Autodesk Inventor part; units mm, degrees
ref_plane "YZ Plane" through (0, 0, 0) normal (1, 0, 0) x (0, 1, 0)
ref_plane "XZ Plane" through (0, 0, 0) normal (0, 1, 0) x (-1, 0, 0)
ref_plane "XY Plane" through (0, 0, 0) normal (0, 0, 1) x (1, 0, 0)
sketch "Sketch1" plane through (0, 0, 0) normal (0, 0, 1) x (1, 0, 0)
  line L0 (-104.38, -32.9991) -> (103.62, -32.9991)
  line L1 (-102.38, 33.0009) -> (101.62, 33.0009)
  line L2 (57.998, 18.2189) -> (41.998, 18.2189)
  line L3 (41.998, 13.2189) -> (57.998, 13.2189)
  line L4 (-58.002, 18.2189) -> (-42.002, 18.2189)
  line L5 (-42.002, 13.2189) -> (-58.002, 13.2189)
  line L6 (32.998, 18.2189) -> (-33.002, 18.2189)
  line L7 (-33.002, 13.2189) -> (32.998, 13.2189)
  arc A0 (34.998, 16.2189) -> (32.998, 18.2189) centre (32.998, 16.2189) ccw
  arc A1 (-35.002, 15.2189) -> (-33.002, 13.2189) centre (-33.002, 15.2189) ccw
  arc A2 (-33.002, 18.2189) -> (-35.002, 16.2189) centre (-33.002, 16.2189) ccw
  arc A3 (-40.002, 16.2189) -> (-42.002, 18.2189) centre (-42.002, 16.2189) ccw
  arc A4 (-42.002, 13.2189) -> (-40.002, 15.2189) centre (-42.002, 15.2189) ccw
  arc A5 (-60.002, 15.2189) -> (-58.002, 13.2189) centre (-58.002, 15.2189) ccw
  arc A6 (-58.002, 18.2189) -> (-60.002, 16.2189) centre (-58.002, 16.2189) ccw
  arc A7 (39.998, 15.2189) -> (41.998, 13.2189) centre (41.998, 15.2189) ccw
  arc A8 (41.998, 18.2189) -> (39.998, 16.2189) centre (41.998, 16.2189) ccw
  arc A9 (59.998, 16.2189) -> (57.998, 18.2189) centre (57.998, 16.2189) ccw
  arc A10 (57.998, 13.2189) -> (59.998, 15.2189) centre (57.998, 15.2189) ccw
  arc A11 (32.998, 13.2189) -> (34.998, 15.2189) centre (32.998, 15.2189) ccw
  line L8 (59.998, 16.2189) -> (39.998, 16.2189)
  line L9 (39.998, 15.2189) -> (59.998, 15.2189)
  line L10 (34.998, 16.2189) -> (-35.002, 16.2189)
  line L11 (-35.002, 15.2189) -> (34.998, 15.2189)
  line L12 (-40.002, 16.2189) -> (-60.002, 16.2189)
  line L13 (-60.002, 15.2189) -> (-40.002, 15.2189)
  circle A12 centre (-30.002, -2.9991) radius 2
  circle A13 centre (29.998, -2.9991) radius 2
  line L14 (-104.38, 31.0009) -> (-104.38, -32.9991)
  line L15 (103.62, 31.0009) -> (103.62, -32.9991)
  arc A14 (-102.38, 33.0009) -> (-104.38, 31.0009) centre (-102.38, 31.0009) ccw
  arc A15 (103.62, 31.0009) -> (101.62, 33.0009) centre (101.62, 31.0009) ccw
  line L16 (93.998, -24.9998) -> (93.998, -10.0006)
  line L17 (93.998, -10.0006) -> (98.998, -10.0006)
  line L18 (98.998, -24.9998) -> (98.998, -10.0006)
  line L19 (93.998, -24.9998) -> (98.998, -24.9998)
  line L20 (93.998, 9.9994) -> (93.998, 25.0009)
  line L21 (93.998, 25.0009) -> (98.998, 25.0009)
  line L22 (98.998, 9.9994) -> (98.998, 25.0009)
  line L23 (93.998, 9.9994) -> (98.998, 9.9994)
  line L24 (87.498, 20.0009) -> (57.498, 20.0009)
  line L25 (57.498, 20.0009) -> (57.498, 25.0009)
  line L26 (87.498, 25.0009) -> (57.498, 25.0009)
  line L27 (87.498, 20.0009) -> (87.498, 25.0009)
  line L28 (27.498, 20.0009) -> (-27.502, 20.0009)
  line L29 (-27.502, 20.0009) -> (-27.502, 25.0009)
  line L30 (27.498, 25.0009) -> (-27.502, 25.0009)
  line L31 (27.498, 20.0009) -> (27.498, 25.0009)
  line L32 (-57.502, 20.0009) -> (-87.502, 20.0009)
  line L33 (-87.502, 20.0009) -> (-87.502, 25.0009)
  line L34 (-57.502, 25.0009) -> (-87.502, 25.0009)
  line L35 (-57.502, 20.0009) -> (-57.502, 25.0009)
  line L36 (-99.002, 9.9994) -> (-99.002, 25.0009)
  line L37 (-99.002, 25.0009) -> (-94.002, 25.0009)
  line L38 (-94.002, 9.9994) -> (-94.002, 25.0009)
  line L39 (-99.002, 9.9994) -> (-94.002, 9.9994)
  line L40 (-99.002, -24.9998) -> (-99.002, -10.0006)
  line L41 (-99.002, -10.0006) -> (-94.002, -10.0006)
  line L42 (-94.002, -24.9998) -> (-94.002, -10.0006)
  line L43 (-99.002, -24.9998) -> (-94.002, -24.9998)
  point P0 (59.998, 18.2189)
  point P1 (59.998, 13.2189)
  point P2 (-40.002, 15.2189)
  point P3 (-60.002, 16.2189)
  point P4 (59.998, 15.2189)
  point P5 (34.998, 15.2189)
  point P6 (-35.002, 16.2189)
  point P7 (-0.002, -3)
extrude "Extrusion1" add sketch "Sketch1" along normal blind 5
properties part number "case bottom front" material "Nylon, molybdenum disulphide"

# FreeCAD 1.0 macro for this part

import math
import FreeCAD as App
import Part
import Sketcher
from FreeCAD import Vector

doc = App.newDocument("Part")
body = doc.addObject("PartDesign::Body", "Body")

# Sketch on XY plane
sketch1 = body.newObject("Sketcher::SketchObject", "Sketch")
sketch1.AttachmentSupport = (doc.getObject("XY_Plane"), [""])
sketch1.MapMode = "FlatFace"
sketch1.addGeometry([
    Part.LineSegment(Vector(-104.4, 31, 0), Vector(-104.4, -33, 0)),  # 0
    Part.LineSegment(Vector(-104.4, -33, 0), Vector(103.6, -33, 0)),  # 1
    Part.LineSegment(Vector(103.6, -33, 0), Vector(103.6, 31, 0)),  # 2
    Part.ArcOfCircle(Part.Circle(Vector(101.6, 31, 0), Vector(0, 0, 1), 2), math.radians(0), math.radians(90)),  # 3
    Part.LineSegment(Vector(101.6, 33, 0), Vector(-102.4, 33, 0)),  # 4
    Part.ArcOfCircle(Part.Circle(Vector(-102.4, 31, 0), Vector(0, 0, 1), 2), math.radians(90), math.radians(180)),  # 5
    Part.LineSegment(Vector(-94, -25, 0), Vector(-99, -25, 0)),  # 6
    Part.LineSegment(Vector(-99, -25, 0), Vector(-99, -10, 0)),  # 7
    Part.LineSegment(Vector(-99, -10, 0), Vector(-94, -10, 0)),  # 8
    Part.LineSegment(Vector(-94, -10, 0), Vector(-94, -25, 0)),  # 9
    Part.Circle(Vector(-30, -3, 0), Vector(0, 0, 1), 2),  # 10
    Part.LineSegment(Vector(99, -25, 0), Vector(94, -25, 0)),  # 11
    Part.LineSegment(Vector(94, -25, 0), Vector(94, -10, 0)),  # 12
    Part.LineSegment(Vector(94, -10, 0), Vector(99, -10, 0)),  # 13
    Part.LineSegment(Vector(99, -10, 0), Vector(99, -25, 0)),  # 14
    Part.Circle(Vector(30, -3, 0), Vector(0, 0, 1), 2),  # 15
    Part.ArcOfCircle(Part.Circle(Vector(-42, 15.2, 0), Vector(0, 0, 1), 2), math.radians(-90), math.radians(0)),  # 16
    Part.LineSegment(Vector(-42, 13.2, 0), Vector(-58, 13.2, 0)),  # 17
    Part.ArcOfCircle(Part.Circle(Vector(-58, 15.2, 0), Vector(0, 0, 1), 2), math.radians(180), math.radians(270)),  # 18
    Part.LineSegment(Vector(-60, 15.2, 0), Vector(-40, 15.2, 0)),  # 19
    Part.LineSegment(Vector(-94, 10, 0), Vector(-99, 10, 0)),  # 20
    Part.LineSegment(Vector(-99, 10, 0), Vector(-99, 25, 0)),  # 21
    Part.LineSegment(Vector(-99, 25, 0), Vector(-94, 25, 0)),  # 22
    Part.LineSegment(Vector(-94, 25, 0), Vector(-94, 10, 0)),  # 23
    Part.LineSegment(Vector(-57.5, 25, 0), Vector(-57.5, 20, 0)),  # 24
    Part.LineSegment(Vector(-57.5, 20, 0), Vector(-87.5, 20, 0)),  # 25
    Part.LineSegment(Vector(-87.5, 20, 0), Vector(-87.5, 25, 0)),  # 26
    Part.LineSegment(Vector(-87.5, 25, 0), Vector(-57.5, 25, 0)),  # 27
    Part.ArcOfCircle(Part.Circle(Vector(-58, 16.2, 0), Vector(0, 0, 1), 2), math.radians(90), math.radians(180)),  # 28
    Part.LineSegment(Vector(-58, 18.2, 0), Vector(-42, 18.2, 0)),  # 29
    Part.ArcOfCircle(Part.Circle(Vector(-42, 16.2, 0), Vector(0, 0, 1), 2), math.radians(0), math.radians(90)),  # 30
    Part.LineSegment(Vector(-40, 16.2, 0), Vector(-60, 16.2, 0)),  # 31
    Part.LineSegment(Vector(33, 13.2, 0), Vector(-33, 13.2, 0)),  # 32
    Part.ArcOfCircle(Part.Circle(Vector(-33, 15.2, 0), Vector(0, 0, 1), 2), math.radians(180), math.radians(270)),  # 33
    Part.LineSegment(Vector(-35, 15.2, 0), Vector(35, 15.2, 0)),  # 34
    Part.ArcOfCircle(Part.Circle(Vector(33, 15.2, 0), Vector(0, 0, 1), 2), math.radians(-90), math.radians(0)),  # 35
    Part.LineSegment(Vector(58, 13.2, 0), Vector(42, 13.2, 0)),  # 36
    Part.ArcOfCircle(Part.Circle(Vector(42, 15.2, 0), Vector(0, 0, 1), 2), math.radians(180), math.radians(270)),  # 37
    Part.LineSegment(Vector(40, 15.2, 0), Vector(60, 15.2, 0)),  # 38
    Part.ArcOfCircle(Part.Circle(Vector(58, 15.2, 0), Vector(0, 0, 1), 2), math.radians(-90), math.radians(0)),  # 39
    Part.LineSegment(Vector(-33, 18.2, 0), Vector(33, 18.2, 0)),  # 40
    Part.ArcOfCircle(Part.Circle(Vector(33, 16.2, 0), Vector(0, 0, 1), 2), math.radians(0), math.radians(90)),  # 41
    Part.LineSegment(Vector(35, 16.2, 0), Vector(-35, 16.2, 0)),  # 42
    Part.ArcOfCircle(Part.Circle(Vector(-33, 16.2, 0), Vector(0, 0, 1), 2), math.radians(90), math.radians(180)),  # 43
    Part.LineSegment(Vector(27.5, 25, 0), Vector(27.5, 20, 0)),  # 44
    Part.LineSegment(Vector(27.5, 20, 0), Vector(-27.5, 20, 0)),  # 45
    Part.LineSegment(Vector(-27.5, 20, 0), Vector(-27.5, 25, 0)),  # 46
    Part.LineSegment(Vector(-27.5, 25, 0), Vector(27.5, 25, 0)),  # 47
    Part.LineSegment(Vector(42, 18.2, 0), Vector(58, 18.2, 0)),  # 48
    Part.ArcOfCircle(Part.Circle(Vector(58, 16.2, 0), Vector(0, 0, 1), 2), math.radians(0), math.radians(90)),  # 49
    Part.LineSegment(Vector(60, 16.2, 0), Vector(40, 16.2, 0)),  # 50
    Part.ArcOfCircle(Part.Circle(Vector(42, 16.2, 0), Vector(0, 0, 1), 2), math.radians(90), math.radians(180)),  # 51
    Part.LineSegment(Vector(87.5, 25, 0), Vector(87.5, 20, 0)),  # 52
    Part.LineSegment(Vector(87.5, 20, 0), Vector(57.5, 20, 0)),  # 53
    Part.LineSegment(Vector(57.5, 20, 0), Vector(57.5, 25, 0)),  # 54
    Part.LineSegment(Vector(57.5, 25, 0), Vector(87.5, 25, 0)),  # 55
    Part.LineSegment(Vector(99, 10, 0), Vector(94, 10, 0)),  # 56
    Part.LineSegment(Vector(94, 10, 0), Vector(94, 25, 0)),  # 57
    Part.LineSegment(Vector(94, 25, 0), Vector(99, 25, 0)),  # 58
    Part.LineSegment(Vector(99, 25, 0), Vector(99, 10, 0)),  # 59
], False)
sketch1.addConstraint([
    Sketcher.Constraint("Coincident", 0, 2, 1, 1),
    Sketcher.Constraint("Coincident", 1, 2, 2, 1),
    Sketcher.Constraint("Tangent", 2, 2, 3, 1),
    Sketcher.Constraint("Tangent", 3, 2, 4, 1),
    Sketcher.Constraint("Tangent", 4, 2, 5, 1),
    Sketcher.Constraint("Tangent", 5, 2, 0, 1),
    Sketcher.Constraint("Coincident", 6, 2, 7, 1),
    Sketcher.Constraint("Coincident", 7, 2, 8, 1),
    Sketcher.Constraint("Coincident", 8, 2, 9, 1),
    Sketcher.Constraint("Coincident", 9, 2, 6, 1),
    Sketcher.Constraint("Coincident", 11, 2, 12, 1),
    Sketcher.Constraint("Coincident", 12, 2, 13, 1),
    Sketcher.Constraint("Coincident", 13, 2, 14, 1),
    Sketcher.Constraint("Coincident", 14, 2, 11, 1),
    Sketcher.Constraint("Tangent", 16, 1, 17, 1),
    Sketcher.Constraint("Tangent", 17, 2, 18, 2),
    Sketcher.Constraint("Coincident", 18, 1, 19, 1),
    Sketcher.Constraint("Coincident", 19, 2, 16, 2),
    Sketcher.Constraint("Coincident", 20, 2, 21, 1),
    Sketcher.Constraint("Coincident", 21, 2, 22, 1),
    Sketcher.Constraint("Coincident", 22, 2, 23, 1),
    Sketcher.Constraint("Coincident", 23, 2, 20, 1),
    Sketcher.Constraint("Coincident", 24, 2, 25, 1),
    Sketcher.Constraint("Coincident", 25, 2, 26, 1),
    Sketcher.Constraint("Coincident", 26, 2, 27, 1),
    Sketcher.Constraint("Coincident", 27, 2, 24, 1),
    Sketcher.Constraint("Tangent", 28, 1, 29, 1),
    Sketcher.Constraint("Tangent", 29, 2, 30, 2),
    Sketcher.Constraint("Coincident", 30, 1, 31, 1),
    Sketcher.Constraint("Coincident", 31, 2, 28, 2),
    Sketcher.Constraint("Tangent", 32, 2, 33, 2),
    Sketcher.Constraint("Coincident", 33, 1, 34, 1),
    Sketcher.Constraint("Coincident", 34, 2, 35, 2),
    Sketcher.Constraint("Tangent", 35, 1, 32, 1),
    Sketcher.Constraint("Tangent", 36, 2, 37, 2),
    Sketcher.Constraint("Coincident", 37, 1, 38, 1),
    Sketcher.Constraint("Coincident", 38, 2, 39, 2),
    Sketcher.Constraint("Tangent", 39, 1, 36, 1),
    Sketcher.Constraint("Tangent", 40, 2, 41, 2),
    Sketcher.Constraint("Coincident", 41, 1, 42, 1),
    Sketcher.Constraint("Coincident", 42, 2, 43, 2),
    Sketcher.Constraint("Tangent", 43, 1, 40, 1),
    Sketcher.Constraint("Coincident", 44, 2, 45, 1),
    Sketcher.Constraint("Coincident", 45, 2, 46, 1),
    Sketcher.Constraint("Coincident", 46, 2, 47, 1),
    Sketcher.Constraint("Coincident", 47, 2, 44, 1),
    Sketcher.Constraint("Tangent", 48, 2, 49, 2),
    Sketcher.Constraint("Coincident", 49, 1, 50, 1),
    Sketcher.Constraint("Coincident", 50, 2, 51, 2),
    Sketcher.Constraint("Tangent", 51, 1, 48, 1),
    Sketcher.Constraint("Coincident", 52, 2, 53, 1),
    Sketcher.Constraint("Coincident", 53, 2, 54, 1),
    Sketcher.Constraint("Coincident", 54, 2, 55, 1),
    Sketcher.Constraint("Coincident", 55, 2, 52, 1),
    Sketcher.Constraint("Coincident", 56, 2, 57, 1),
    Sketcher.Constraint("Coincident", 57, 2, 58, 1),
    Sketcher.Constraint("Coincident", 58, 2, 59, 1),
    Sketcher.Constraint("Coincident", 59, 2, 56, 1),
    Sketcher.Constraint("Vertical", 0),
    Sketcher.Constraint("Horizontal", 1),
    Sketcher.Constraint("Vertical", 2),
    Sketcher.Constraint("Horizontal", 4),
    Sketcher.Constraint("Horizontal", 6),
    Sketcher.Constraint("Vertical", 7),
    Sketcher.Constraint("Horizontal", 8),
    Sketcher.Constraint("Vertical", 9),
    Sketcher.Constraint("Horizontal", 11),
    Sketcher.Constraint("Vertical", 12),
    Sketcher.Constraint("Horizontal", 13),
    Sketcher.Constraint("Vertical", 14),
    Sketcher.Constraint("Horizontal", 17),
    Sketcher.Constraint("Horizontal", 19),
    Sketcher.Constraint("Horizontal", 20),
    Sketcher.Constraint("Vertical", 21),
    Sketcher.Constraint("Horizontal", 22),
    Sketcher.Constraint("Vertical", 23),
    Sketcher.Constraint("Vertical", 24),
    Sketcher.Constraint("Horizontal", 25),
    Sketcher.Constraint("Vertical", 26),
    Sketcher.Constraint("Horizontal", 27),
    Sketcher.Constraint("Horizontal", 29),
    Sketcher.Constraint("Horizontal", 31),
    Sketcher.Constraint("Horizontal", 32),
    Sketcher.Constraint("Horizontal", 34),
    Sketcher.Constraint("Horizontal", 36),
    Sketcher.Constraint("Horizontal", 38),
    Sketcher.Constraint("Horizontal", 40),
    Sketcher.Constraint("Horizontal", 42),
    Sketcher.Constraint("Vertical", 44),
    Sketcher.Constraint("Horizontal", 45),
    Sketcher.Constraint("Vertical", 46),
    Sketcher.Constraint("Horizontal", 47),
    Sketcher.Constraint("Horizontal", 48),
    Sketcher.Constraint("Horizontal", 50),
    Sketcher.Constraint("Vertical", 52),
    Sketcher.Constraint("Horizontal", 53),
    Sketcher.Constraint("Vertical", 54),
    Sketcher.Constraint("Horizontal", 55),
    Sketcher.Constraint("Horizontal", 56),
    Sketcher.Constraint("Vertical", 57),
    Sketcher.Constraint("Horizontal", 58),
    Sketcher.Constraint("Vertical", 59),
    Sketcher.Constraint("Equal", 3, 5),
    Sketcher.Constraint("Equal", 5, 10),
    Sketcher.Constraint("Equal", 10, 15),
    Sketcher.Constraint("Equal", 15, 16),
    Sketcher.Constraint("Equal", 16, 18),
    Sketcher.Constraint("Equal", 18, 28),
    Sketcher.Constraint("Equal", 28, 30),
    Sketcher.Constraint("Equal", 30, 33),
    Sketcher.Constraint("Equal", 33, 35),
    Sketcher.Constraint("Equal", 35, 37),
    Sketcher.Constraint("Equal", 37, 39),
    Sketcher.Constraint("Equal", 39, 41),
    Sketcher.Constraint("Equal", 41, 43),
    Sketcher.Constraint("Equal", 43, 49),
    Sketcher.Constraint("Equal", 49, 51),
    Sketcher.Constraint("Horizontal", 10, 3, 15, 3),
    Sketcher.Constraint("Horizontal", 18, 3, 33, 3),
    Sketcher.Constraint("Horizontal", 35, 3, 37, 3),
    Sketcher.Constraint("Horizontal", 30, 3, 41, 3),
    Sketcher.Constraint("Horizontal", 43, 3, 49, 3),
    Sketcher.Constraint("Horizontal", 9, 2, 11, 2),
    Sketcher.Constraint("Horizontal", 8, 2, 12, 2),
    Sketcher.Constraint("Horizontal", 39, 3, 18, 1),
    Sketcher.Constraint("Horizontal", 22, 2, 26, 2),
    Sketcher.Constraint("Horizontal", 51, 3, 30, 1),
    Sketcher.Constraint("Horizontal", 19, 2, 33, 1),
    Sketcher.Constraint("Horizontal", 34, 2, 37, 1),
    Sketcher.Constraint("Horizontal", 31, 2, 41, 1),
    Sketcher.Constraint("Horizontal", 25, 2, 44, 2),
    Sketcher.Constraint("Horizontal", 27, 2, 46, 2),
    Sketcher.Constraint("Horizontal", 42, 2, 49, 1),
    Sketcher.Constraint("Horizontal", 45, 2, 52, 2),
    Sketcher.Constraint("Horizontal", 47, 2, 54, 2),
    Sketcher.Constraint("Horizontal", 23, 2, 56, 2),
    Sketcher.Constraint("Horizontal", 55, 2, 57, 2),
    Sketcher.Constraint("Vertical", 18, 3, 28, 3),
    Sketcher.Constraint("Vertical", 16, 3, 30, 3),
    Sketcher.Constraint("Vertical", 35, 3, 41, 3),
    Sketcher.Constraint("Vertical", 33, 3, 43, 3),
    Sketcher.Constraint("Vertical", 39, 3, 49, 3),
    Sketcher.Constraint("Vertical", 37, 3, 51, 3),
    Sketcher.Constraint("Vertical", 7, 2, 20, 2),
    Sketcher.Constraint("Vertical", 9, 2, 22, 2),
    Sketcher.Constraint("Vertical", 12, 2, 56, 2),
    Sketcher.Constraint("Vertical", 14, 2, 58, 2),
    Sketcher.Constraint("Equal", 8, 11),
    Sketcher.Constraint("Equal", 29, 36),
    Sketcher.Constraint("Equal", 27, 53),
    Sketcher.Constraint("Equal", 58, 24),
    Sketcher.Constraint("Diameter", 10, 4.0),
    Sketcher.Constraint("DistanceX", 1, 1, 1, 2, 208.0),
    Sketcher.Constraint("DistanceX", 6, 2, 6, 1, 5.0),
    Sketcher.Constraint("DistanceX", 17, 2, 17, 1, 16.0),
    Sketcher.Constraint("DistanceX", 25, 2, 25, 1, 30.0),
    Sketcher.Constraint("DistanceX", 32, 2, 32, 1, 66.0),
    Sketcher.Constraint("DistanceX", 45, 2, 45, 1, 55.0),
    Sketcher.Constraint("DistanceY", 0, 2, 0, 1, 64.0),
    Sketcher.Constraint("DistanceX", -1, 1, 3, 3, 101.62),
    Sketcher.Constraint("DistanceY", 7, 1, 7, 2, 14.9992),
    Sketcher.Constraint("DistanceY", 21, 1, 21, 2, 15.0015),
    Sketcher.Constraint("DistanceY", -1, 1, 3, 3, 31.001),
    Sketcher.Constraint("DistanceX", 10, 3, -1, 1, 30.002),
    Sketcher.Constraint("DistanceY", 10, 3, -1, 1, 2.999),
    Sketcher.Constraint("DistanceX", -1, 1, 15, 3, 29.998),
    Sketcher.Constraint("DistanceX", 16, 3, -1, 1, 42.002),
    Sketcher.Constraint("DistanceY", -1, 1, 16, 3, 15.219),
    Sketcher.Constraint("DistanceY", -1, 1, 28, 3, 16.219),
    Sketcher.Constraint("DistanceX", 33, 3, -1, 1, 33.002),
    Sketcher.Constraint("DistanceX", -1, 1, 37, 3, 41.998),
    Sketcher.Constraint("DistanceX", 6, 2, -1, 1, 99.002),
    Sketcher.Constraint("DistanceX", -1, 1, 11, 2, 93.998),
    Sketcher.Constraint("DistanceY", -1, 1, 21, 2, 25.001),
    Sketcher.Constraint("DistanceX", 24, 2, -1, 1, 57.502),
    Sketcher.Constraint("DistanceX", -1, 1, 44, 2, 27.498),
    Sketcher.Constraint("DistanceX", -1, 1, 52, 2, 87.498),
    Sketcher.Constraint("DistanceY", 6, 2, -1, 1, 24.9998),
])
pad1 = body.newObject("PartDesign::Pad", "Pad")
pad1.Profile = sketch1
pad1.Length = 5

doc.recompute()
